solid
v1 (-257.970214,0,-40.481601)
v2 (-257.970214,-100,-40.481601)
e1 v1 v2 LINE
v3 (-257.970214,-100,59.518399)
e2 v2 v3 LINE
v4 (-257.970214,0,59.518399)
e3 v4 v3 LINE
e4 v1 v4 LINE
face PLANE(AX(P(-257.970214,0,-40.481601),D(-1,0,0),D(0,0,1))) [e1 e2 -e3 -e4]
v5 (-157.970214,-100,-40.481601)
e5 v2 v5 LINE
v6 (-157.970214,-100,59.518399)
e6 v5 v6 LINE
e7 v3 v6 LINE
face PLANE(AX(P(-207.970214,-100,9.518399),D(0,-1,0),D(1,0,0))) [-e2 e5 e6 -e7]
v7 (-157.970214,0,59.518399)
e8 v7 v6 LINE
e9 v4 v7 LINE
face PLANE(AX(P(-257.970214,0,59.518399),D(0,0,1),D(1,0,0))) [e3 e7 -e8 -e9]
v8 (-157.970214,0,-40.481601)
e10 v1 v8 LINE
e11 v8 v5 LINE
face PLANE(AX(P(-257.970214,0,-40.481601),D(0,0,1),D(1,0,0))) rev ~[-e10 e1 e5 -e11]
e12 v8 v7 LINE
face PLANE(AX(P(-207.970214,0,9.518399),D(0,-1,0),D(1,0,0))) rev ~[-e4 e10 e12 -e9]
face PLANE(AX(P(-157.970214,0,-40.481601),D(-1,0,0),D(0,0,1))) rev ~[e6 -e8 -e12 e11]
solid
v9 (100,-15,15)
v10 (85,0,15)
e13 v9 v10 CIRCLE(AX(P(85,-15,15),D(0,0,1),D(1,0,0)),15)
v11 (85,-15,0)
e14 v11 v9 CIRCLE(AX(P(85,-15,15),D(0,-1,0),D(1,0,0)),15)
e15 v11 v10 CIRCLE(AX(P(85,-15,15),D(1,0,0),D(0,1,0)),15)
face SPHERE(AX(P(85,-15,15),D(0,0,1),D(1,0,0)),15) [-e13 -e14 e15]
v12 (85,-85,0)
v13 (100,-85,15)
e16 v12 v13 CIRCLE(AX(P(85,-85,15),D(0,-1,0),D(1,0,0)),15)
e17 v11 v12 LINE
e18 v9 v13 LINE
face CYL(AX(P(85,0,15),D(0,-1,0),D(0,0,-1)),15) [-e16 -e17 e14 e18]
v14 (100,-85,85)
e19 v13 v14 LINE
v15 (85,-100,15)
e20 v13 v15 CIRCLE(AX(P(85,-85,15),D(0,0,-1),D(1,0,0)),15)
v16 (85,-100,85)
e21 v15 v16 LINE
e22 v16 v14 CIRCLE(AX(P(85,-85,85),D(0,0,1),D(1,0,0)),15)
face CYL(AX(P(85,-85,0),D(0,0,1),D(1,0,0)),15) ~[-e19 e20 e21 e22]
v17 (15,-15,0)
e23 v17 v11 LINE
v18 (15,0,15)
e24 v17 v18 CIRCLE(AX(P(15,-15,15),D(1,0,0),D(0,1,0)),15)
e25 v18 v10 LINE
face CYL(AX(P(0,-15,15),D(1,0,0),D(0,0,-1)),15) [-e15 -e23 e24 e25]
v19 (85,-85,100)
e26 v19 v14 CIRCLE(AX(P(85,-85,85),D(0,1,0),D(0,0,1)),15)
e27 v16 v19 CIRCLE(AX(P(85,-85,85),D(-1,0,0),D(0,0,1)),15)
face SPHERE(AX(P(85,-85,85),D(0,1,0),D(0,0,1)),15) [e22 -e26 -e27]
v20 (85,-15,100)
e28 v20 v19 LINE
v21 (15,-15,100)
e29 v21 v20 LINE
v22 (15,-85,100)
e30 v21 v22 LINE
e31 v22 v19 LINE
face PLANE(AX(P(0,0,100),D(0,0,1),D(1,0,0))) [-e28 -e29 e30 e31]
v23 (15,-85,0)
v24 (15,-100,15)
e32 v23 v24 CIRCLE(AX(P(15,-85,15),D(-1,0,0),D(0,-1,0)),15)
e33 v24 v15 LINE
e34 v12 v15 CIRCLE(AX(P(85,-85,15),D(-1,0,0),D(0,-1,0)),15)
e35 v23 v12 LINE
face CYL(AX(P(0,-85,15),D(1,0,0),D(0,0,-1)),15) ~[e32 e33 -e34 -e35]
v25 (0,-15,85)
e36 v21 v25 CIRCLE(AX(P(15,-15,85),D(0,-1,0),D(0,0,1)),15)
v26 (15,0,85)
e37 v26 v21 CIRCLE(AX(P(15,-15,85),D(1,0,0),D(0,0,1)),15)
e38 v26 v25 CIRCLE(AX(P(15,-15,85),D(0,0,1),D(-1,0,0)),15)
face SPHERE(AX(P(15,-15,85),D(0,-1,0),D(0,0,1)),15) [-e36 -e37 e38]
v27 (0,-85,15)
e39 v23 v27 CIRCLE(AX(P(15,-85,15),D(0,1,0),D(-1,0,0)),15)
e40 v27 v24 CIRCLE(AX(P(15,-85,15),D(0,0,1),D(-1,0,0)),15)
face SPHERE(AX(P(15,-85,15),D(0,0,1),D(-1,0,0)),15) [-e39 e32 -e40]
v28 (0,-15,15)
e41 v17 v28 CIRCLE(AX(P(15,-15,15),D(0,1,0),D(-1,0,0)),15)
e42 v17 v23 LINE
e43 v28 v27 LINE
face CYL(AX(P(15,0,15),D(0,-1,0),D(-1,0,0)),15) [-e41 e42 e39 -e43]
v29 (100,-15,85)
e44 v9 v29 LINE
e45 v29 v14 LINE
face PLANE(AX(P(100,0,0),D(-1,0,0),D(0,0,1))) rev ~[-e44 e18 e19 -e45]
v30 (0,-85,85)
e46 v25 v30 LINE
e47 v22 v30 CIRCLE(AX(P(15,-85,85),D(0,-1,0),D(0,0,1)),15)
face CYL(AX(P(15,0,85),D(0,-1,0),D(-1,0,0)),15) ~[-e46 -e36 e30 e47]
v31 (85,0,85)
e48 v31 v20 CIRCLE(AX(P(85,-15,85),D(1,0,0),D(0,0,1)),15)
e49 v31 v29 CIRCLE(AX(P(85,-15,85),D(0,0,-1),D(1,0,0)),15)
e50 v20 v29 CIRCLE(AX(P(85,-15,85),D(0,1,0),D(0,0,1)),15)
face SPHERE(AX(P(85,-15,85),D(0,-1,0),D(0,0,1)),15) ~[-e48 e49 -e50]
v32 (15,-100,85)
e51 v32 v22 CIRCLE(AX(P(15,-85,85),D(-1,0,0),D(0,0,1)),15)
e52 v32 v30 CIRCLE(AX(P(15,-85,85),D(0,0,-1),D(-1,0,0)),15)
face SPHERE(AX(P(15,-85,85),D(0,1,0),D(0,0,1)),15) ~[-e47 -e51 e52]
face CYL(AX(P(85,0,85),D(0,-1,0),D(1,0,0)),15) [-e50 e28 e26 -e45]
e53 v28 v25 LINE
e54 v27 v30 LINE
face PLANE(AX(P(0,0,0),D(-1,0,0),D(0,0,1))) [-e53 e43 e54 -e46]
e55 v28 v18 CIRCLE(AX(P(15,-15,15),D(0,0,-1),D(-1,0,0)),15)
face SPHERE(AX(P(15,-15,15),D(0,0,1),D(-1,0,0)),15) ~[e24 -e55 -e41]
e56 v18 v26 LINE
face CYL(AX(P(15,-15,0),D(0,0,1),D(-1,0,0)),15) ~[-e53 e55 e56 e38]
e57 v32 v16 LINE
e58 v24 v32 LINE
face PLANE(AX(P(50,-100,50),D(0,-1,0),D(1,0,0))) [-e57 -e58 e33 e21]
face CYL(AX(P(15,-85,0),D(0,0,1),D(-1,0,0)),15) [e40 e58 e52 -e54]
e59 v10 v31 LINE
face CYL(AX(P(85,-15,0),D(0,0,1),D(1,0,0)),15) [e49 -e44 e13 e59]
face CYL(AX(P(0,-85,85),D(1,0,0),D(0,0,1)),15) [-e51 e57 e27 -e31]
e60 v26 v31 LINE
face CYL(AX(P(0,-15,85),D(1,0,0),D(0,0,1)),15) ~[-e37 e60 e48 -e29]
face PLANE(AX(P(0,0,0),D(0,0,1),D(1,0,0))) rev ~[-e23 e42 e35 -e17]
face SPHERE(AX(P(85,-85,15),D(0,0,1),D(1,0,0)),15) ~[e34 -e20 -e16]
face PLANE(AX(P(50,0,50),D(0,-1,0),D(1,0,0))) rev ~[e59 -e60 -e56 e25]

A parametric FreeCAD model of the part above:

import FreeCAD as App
import Part
import Sketcher

V = App.Vector
Q = App.Units.Quantity

doc = App.newDocument("Part")
body = doc.addObject("PartDesign::Body", "Body")

sketch1 = doc.addObject("Sketcher::SketchObject", "Sketch")
body.addObject(sketch1)
sketch1.AttachmentSupport = (doc.XZ_Plane, [""])
sketch1.MapMode = "FlatFace"
sketch1.addGeometry(Part.LineSegment(V(0, 100, 0), V(0, 0, 0)), False)
sketch1.addGeometry(Part.LineSegment(V(0, 0, 0), V(100, 0, 0)), False)
sketch1.addGeometry(Part.LineSegment(V(100, 0, 0), V(100, 100, 0)), False)
sketch1.addGeometry(Part.LineSegment(V(100, 100, 0), V(0, 100, 0)), False)
sketch1.addConstraint(Sketcher.Constraint("Coincident", 0, 2, 1, 1))
sketch1.addConstraint(Sketcher.Constraint("Coincident", 1, 2, 2, 1))
sketch1.addConstraint(Sketcher.Constraint("Coincident", 2, 2, 3, 1))
sketch1.addConstraint(Sketcher.Constraint("Coincident", 3, 2, 0, 1))
sketch1.addConstraint(Sketcher.Constraint("Vertical", 0))
sketch1.addConstraint(Sketcher.Constraint("Horizontal", 1))
sketch1.addConstraint(Sketcher.Constraint("Vertical", 2))
sketch1.addConstraint(Sketcher.Constraint("Horizontal", 3))
sketch1.addConstraint(Sketcher.Constraint("Coincident", 0, 2, -1, 1))
sketch1.addConstraint(Sketcher.Constraint("Equal", 3, 0))
sketch1.addConstraint(Sketcher.Constraint("DistanceX", 1, 1, 1, 2, Q("100 mm")))
pad1 = doc.addObject("PartDesign::Pad", "Pad")
body.addObject(pad1)
pad1.Profile = sketch1
pad1.Length = 100
doc.recompute()

fillet = doc.addObject("PartDesign::Fillet", "Fillet")
body.addObject(fillet)
fillet.Base = (pad1, ["Edge1"])
fillet.UseAllEdges = True
fillet.Radius = 15
body2 = doc.addObject("PartDesign::Body", "Body001")

sketch2 = doc.addObject("Sketcher::SketchObject", "Sketch001")
body2.addObject(sketch2)
sketch2.AttachmentSupport = (doc.getObject("XZ_Plane001"), [""])
sketch2.MapMode = "FlatFace"
sketch2.addGeometry(Part.LineSegment(V(-258, 60, 0), V(-258, -40, 0)), False)
sketch2.addGeometry(Part.LineSegment(V(-258, -40, 0), V(-158, -40, 0)), False)
sketch2.addGeometry(Part.LineSegment(V(-158, -40, 0), V(-158, 60, 0)), False)
sketch2.addGeometry(Part.LineSegment(V(-158, 60, 0), V(-258, 60, 0)), False)
sketch2.addConstraint(Sketcher.Constraint("Coincident", 0, 2, 1, 1))
sketch2.addConstraint(Sketcher.Constraint("Coincident", 1, 2, 2, 1))
sketch2.addConstraint(Sketcher.Constraint("Coincident", 2, 2, 3, 1))
sketch2.addConstraint(Sketcher.Constraint("Coincident", 3, 2, 0, 1))
sketch2.addConstraint(Sketcher.Constraint("Vertical", 0))
sketch2.addConstraint(Sketcher.Constraint("Horizontal", 1))
sketch2.addConstraint(Sketcher.Constraint("Vertical", 2))
sketch2.addConstraint(Sketcher.Constraint("Horizontal", 3))
sketch2.addConstraint(Sketcher.Constraint("Equal", 3, 0))
sketch2.addConstraint(Sketcher.Constraint("DistanceX", 1, 1, 1, 2, Q("100 mm")))
sketch2.addConstraint(Sketcher.Constraint("DistanceY", 0, 2, -1, 1, Q("40.481601 mm")))
sketch2.addConstraint(Sketcher.Constraint("DistanceX", 0, 2, -1, 1, Q("257.970214 mm")))
pad2 = doc.addObject("PartDesign::Pad", "Pad001")
body2.addObject(pad2)
pad2.Profile = sketch2
pad2.Length = 100

doc.recompute()
